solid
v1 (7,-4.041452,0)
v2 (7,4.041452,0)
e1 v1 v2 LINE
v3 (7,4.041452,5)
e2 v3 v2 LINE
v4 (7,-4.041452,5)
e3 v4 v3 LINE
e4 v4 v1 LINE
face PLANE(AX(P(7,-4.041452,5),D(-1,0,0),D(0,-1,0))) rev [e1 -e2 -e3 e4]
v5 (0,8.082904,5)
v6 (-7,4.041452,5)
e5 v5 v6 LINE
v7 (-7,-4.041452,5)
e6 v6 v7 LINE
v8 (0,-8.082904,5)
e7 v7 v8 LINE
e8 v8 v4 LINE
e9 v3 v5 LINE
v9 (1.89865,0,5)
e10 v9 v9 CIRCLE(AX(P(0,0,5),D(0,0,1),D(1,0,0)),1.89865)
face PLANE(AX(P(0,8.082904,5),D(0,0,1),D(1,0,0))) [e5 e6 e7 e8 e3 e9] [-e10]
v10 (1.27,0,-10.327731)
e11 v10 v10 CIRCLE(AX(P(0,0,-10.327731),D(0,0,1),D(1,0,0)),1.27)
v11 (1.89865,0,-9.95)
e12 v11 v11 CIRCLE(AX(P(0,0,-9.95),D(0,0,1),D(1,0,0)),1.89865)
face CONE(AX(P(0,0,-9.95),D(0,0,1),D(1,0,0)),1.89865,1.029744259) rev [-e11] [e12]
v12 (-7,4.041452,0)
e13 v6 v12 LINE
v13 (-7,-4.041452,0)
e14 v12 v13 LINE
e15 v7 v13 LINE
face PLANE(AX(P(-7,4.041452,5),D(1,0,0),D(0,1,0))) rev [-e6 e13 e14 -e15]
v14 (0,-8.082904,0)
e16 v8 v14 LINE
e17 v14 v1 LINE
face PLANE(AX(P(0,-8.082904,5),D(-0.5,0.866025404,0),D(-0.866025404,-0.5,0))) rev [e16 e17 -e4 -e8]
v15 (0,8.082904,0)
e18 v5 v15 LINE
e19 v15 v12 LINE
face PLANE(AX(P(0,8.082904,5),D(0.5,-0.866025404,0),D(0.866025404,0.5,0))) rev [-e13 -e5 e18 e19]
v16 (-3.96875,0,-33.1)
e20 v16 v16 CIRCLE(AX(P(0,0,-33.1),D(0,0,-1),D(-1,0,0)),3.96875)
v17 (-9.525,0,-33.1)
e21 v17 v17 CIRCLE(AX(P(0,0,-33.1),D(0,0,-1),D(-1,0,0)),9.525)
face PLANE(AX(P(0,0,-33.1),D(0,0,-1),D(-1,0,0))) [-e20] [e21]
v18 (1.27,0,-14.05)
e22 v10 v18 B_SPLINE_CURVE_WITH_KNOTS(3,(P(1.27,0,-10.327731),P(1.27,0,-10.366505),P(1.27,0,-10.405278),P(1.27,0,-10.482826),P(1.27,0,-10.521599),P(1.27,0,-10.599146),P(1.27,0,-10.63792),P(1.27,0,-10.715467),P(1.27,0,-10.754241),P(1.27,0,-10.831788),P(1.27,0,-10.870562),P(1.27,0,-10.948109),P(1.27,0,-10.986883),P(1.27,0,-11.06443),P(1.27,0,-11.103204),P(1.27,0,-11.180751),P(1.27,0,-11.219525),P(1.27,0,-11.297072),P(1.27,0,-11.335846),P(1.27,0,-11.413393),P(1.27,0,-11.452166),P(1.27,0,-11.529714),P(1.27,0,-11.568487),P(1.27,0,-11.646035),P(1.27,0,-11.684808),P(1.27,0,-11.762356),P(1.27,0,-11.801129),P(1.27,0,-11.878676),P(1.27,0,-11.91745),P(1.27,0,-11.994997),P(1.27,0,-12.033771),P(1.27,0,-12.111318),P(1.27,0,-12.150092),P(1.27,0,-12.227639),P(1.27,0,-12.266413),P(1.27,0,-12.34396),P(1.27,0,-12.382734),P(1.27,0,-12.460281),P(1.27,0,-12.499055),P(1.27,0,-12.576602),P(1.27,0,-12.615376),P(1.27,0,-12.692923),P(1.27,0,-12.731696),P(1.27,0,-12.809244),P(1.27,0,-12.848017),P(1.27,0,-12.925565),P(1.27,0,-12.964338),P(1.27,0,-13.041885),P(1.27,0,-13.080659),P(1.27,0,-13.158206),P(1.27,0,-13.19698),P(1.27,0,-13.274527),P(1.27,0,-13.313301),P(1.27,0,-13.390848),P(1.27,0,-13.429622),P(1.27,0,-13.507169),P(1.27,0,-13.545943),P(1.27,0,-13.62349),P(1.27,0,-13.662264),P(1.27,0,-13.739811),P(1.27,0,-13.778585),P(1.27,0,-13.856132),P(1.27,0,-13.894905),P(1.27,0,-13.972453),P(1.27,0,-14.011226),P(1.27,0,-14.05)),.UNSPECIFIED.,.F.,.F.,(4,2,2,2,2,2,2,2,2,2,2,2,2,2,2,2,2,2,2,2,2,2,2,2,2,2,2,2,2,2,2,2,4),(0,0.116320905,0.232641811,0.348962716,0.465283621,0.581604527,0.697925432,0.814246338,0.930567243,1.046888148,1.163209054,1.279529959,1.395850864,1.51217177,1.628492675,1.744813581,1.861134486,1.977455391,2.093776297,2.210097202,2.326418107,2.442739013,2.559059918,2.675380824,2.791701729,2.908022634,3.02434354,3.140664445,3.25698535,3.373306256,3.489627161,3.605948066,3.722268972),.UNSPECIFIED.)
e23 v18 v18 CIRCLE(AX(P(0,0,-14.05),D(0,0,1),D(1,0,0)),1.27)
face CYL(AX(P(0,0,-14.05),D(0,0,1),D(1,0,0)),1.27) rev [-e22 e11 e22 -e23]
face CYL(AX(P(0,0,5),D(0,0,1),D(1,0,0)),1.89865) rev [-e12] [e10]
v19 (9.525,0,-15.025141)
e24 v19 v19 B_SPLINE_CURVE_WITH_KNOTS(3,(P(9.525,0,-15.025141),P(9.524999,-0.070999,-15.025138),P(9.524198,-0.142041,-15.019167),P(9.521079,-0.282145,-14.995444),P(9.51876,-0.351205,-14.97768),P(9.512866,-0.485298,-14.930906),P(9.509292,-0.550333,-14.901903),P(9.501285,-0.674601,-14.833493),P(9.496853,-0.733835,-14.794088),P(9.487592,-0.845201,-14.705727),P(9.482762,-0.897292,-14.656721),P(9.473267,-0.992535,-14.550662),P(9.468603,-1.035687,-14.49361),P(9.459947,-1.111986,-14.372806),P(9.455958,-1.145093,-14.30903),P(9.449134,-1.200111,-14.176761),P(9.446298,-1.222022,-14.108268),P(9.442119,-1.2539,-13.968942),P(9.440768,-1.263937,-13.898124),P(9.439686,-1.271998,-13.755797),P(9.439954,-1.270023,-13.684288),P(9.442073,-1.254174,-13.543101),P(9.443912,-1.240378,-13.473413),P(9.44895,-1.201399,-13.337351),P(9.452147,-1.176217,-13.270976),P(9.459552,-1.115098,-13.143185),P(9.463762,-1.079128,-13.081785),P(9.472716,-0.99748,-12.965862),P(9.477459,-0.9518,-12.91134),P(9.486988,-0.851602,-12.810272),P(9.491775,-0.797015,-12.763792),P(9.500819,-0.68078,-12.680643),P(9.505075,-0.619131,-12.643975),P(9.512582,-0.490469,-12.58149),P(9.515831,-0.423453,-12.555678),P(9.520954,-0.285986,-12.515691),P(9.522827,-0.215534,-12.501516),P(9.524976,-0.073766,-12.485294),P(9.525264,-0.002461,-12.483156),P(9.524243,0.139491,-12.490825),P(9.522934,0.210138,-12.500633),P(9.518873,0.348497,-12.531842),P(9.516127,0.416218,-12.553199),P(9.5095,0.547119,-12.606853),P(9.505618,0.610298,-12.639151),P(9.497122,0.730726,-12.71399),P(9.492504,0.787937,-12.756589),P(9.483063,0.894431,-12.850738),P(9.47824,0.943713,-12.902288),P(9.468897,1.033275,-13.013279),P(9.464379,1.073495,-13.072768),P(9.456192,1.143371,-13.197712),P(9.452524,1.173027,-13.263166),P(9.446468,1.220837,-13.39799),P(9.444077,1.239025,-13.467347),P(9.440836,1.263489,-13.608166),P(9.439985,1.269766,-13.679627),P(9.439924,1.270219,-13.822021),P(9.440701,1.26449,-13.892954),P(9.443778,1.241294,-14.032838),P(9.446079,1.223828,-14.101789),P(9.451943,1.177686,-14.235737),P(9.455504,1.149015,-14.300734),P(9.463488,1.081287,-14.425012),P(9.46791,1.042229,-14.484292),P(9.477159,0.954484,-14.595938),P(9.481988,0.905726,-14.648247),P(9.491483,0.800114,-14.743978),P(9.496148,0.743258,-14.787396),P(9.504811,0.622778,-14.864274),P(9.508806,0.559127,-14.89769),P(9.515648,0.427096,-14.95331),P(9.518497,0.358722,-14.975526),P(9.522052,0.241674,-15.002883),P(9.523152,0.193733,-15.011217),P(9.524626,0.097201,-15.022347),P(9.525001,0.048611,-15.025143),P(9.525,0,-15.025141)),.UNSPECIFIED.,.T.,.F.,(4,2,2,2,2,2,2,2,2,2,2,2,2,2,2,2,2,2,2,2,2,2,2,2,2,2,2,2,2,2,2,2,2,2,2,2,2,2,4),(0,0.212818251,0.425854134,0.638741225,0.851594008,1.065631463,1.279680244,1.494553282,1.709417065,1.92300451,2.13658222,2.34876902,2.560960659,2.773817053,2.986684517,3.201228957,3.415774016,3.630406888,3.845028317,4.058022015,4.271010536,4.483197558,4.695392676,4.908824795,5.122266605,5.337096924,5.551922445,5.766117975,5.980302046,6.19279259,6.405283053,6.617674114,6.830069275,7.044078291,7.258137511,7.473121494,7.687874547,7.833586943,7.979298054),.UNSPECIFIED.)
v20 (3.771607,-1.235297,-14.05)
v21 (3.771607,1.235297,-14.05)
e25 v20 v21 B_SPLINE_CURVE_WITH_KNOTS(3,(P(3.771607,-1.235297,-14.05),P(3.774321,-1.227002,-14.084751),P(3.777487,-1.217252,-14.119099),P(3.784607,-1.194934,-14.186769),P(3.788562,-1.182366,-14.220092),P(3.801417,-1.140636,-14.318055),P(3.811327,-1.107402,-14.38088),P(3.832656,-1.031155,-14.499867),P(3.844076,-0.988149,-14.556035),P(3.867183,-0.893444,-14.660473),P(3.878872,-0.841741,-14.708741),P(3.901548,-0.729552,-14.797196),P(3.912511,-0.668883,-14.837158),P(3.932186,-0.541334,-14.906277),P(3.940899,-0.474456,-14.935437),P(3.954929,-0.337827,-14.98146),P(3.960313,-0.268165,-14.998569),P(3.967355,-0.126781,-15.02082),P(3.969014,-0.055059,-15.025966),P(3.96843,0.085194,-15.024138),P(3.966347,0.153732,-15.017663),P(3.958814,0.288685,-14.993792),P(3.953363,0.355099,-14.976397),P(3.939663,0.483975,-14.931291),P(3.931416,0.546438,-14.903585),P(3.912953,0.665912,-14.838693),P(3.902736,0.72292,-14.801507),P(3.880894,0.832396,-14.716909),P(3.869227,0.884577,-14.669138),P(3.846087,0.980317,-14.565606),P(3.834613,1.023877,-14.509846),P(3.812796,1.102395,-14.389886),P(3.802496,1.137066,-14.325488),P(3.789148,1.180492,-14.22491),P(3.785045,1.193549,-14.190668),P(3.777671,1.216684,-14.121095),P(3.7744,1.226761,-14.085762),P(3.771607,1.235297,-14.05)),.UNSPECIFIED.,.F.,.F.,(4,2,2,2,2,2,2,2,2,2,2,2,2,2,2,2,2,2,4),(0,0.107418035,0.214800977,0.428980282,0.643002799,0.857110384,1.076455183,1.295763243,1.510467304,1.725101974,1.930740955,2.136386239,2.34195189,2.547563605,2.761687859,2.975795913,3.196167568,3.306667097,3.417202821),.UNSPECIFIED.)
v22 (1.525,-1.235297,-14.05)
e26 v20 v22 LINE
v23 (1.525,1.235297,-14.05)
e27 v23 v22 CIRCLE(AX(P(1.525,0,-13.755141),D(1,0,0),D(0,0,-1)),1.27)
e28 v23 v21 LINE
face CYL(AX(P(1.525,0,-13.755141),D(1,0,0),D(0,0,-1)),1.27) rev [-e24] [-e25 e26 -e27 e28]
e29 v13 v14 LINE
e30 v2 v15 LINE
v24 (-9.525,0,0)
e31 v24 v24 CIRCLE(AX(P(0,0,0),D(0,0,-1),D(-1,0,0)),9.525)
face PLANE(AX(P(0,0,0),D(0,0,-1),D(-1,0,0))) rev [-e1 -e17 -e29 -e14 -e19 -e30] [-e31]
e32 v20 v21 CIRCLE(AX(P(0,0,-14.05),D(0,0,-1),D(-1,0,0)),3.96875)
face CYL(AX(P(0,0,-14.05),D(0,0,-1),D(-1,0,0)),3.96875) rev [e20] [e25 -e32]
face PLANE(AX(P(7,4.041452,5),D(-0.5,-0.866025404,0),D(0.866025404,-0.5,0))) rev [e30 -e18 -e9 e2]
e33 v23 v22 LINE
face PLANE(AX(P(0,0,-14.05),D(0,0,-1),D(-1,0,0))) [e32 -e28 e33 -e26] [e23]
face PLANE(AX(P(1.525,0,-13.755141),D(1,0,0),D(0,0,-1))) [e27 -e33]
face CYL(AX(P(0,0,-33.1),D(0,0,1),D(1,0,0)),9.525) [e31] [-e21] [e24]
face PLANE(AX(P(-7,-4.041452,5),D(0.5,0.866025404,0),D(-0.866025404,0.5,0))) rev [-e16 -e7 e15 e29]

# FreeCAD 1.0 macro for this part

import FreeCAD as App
import Part
import Sketcher
Q = App.Units.Quantity


def add_polygon(sketch, points):
    """Adds a closed chain of lines whose ends are joined by coincident constraints."""
    first, n = sketch.GeometryCount, len(points)
    for a, b in zip(points, points[1:] + points[:1]):
        sketch.addGeometry(Part.LineSegment(App.Vector(*a, 0), App.Vector(*b, 0)), False)
    for i in range(n):
        sketch.addConstraint(Sketcher.Constraint("Coincident", first + i, 2, first + (i + 1) % n, 1))

doc = App.newDocument("Part")
body = doc.addObject("PartDesign::Body", "Body")

sketch1 = body.newObject("Sketcher::SketchObject", "Sketch")
sketch1.AttachmentSupport = (doc.getObject("XY_Plane"), [""])
sketch1.MapMode = "FlatFace"
add_polygon(sketch1, [(0, 8), (-7, 4), (-7, -4), (0, -8), (7, -4), (7, 4)])
sketch1.addConstraint(Sketcher.Constraint("Vertical", 1))
sketch1.addConstraint(Sketcher.Constraint("Vertical", 4))
sketch1.addConstraint(Sketcher.Constraint("Symmetric", 0, 2, 3, 2, -1, 1))
sketch1.addConstraint(Sketcher.Constraint("Symmetric", 2, 2, 5, 2, -1, 1))
sketch1.addConstraint(Sketcher.Constraint("PointOnObject", 2, 2, -2))
sketch1.addConstraint(Sketcher.Constraint("Parallel", 2, 5))
sketch1.addConstraint(Sketcher.Constraint("Horizontal", 1, 2, 3, 2))
sketch1.addConstraint(Sketcher.Constraint("Angle", 0, Q("-150 deg")))
sketch1.addConstraint(Sketcher.Constraint("DistanceX", 0, 2, -1, 1, 7.0))
sketch1.addConstraint(Sketcher.Constraint("DistanceY", 1, 2, 1, 1, 8.082904))
pad1 = body.newObject("PartDesign::Pad", "Pad")
pad1.Profile = sketch1
pad1.Length = 5

sketch2 = body.newObject("Sketcher::SketchObject", "Sketch001")
sketch2.AttachmentSupport = (doc.getObject("XY_Plane"), [""])
sketch2.MapMode = "FlatFace"
sketch2.addGeometry(Part.Circle(App.Vector(0, 0, 0), App.Vector(0, 0, 1), 10), False)
sketch2.addConstraint(Sketcher.Constraint("Coincident", 0, 3, -1, 1))
sketch2.addConstraint(Sketcher.Constraint("Diameter", 0, 19.05))
pad2 = body.newObject("PartDesign::Pad", "Pad001")
pad2.Profile = sketch2
pad2.Length = 33.1
pad2.Reversed = True

sketch3 = body.newObject("Sketcher::SketchObject", "Sketch002")
sketch3.AttachmentSupport = (doc.getObject("XY_Plane"), [""])
sketch3.MapMode = "FlatFace"
sketch3.AttachmentOffset = App.Placement(App.Vector(0, 0, -33.1), App.Rotation())
sketch3.addGeometry(Part.Circle(App.Vector(0, 0, 0), App.Vector(0, 0, 1), 4), False)
sketch3.addConstraint(Sketcher.Constraint("Coincident", 0, 3, -1, 1))
sketch3.addConstraint(Sketcher.Constraint("Diameter", 0, 7.9375))
pocket1 = body.newObject("PartDesign::Pocket", "Pocket")
pocket1.Profile = sketch3
pocket1.Length = 19.05
pocket1.Reversed = True

sketch4 = body.newObject("Sketcher::SketchObject", "Sketch003")
sketch4.AttachmentSupport = (doc.getObject("XY_Plane"), [""])
sketch4.MapMode = "FlatFace"
sketch4.AttachmentOffset = App.Placement(App.Vector(0, 0, 5), App.Rotation())
sketch4.addGeometry(Part.Circle(App.Vector(0, 0, 0), App.Vector(0, 0, 1), 1.3), False)
sketch4.addConstraint(Sketcher.Constraint("Coincident", 0, 3, -1, 1))
sketch4.addConstraint(Sketcher.Constraint("Diameter", 0, 2.54))
pocket2 = body.newObject("PartDesign::Pocket", "Pocket001")
pocket2.Profile = sketch4
pocket2.Length = 19.05

sketch5 = body.newObject("Sketcher::SketchObject", "Sketch004")
sketch5.AttachmentSupport = (doc.getObject("XY_Plane"), [""])
sketch5.MapMode = "FlatFace"
sketch5.AttachmentOffset = App.Placement(App.Vector(0, 0, 5), App.Rotation())
sketch5.addGeometry(Part.Circle(App.Vector(0, 0, 0), App.Vector(0, 0, 1), 1.9), False)
sketch5.addConstraint(Sketcher.Constraint("Coincident", 0, 3, -1, 1))
sketch5.addConstraint(Sketcher.Constraint("Diameter", 0, 3.7973))
doc.recompute()
hole = body.newObject("PartDesign::Hole", "Hole")
hole.Profile = sketch5
hole.ThreadType = "None"
hole.Diameter = 3.7973
hole.DepthType = "Dimension"
hole.Depth = 14.95
hole.DrillPoint = "Angled"
hole.DrillPointAngle = 118

sketch6 = body.newObject("Sketcher::SketchObject", "Sketch005")
sketch6.AttachmentSupport = (doc.getObject("YZ_Plane"), [""])
sketch6.MapMode = "FlatFace"
sketch6.AttachmentOffset = App.Placement(App.Vector(0, 0, 9.525), App.Rotation())
sketch6.addGeometry(Part.Circle(App.Vector(0, -13.8, 0), App.Vector(0, 0, 1), 1.3), False)
sketch6.addConstraint(Sketcher.Constraint("PointOnObject", 0, 3, -2))
sketch6.addConstraint(Sketcher.Constraint("Diameter", 0, 2.54))
sketch6.addConstraint(Sketcher.Constraint("DistanceY", 0, 3, -1, 1, 13.755141))
pocket3 = body.newObject("PartDesign::Pocket", "Pocket002")
pocket3.Profile = sketch6
pocket3.Length = 8

doc.recompute()
